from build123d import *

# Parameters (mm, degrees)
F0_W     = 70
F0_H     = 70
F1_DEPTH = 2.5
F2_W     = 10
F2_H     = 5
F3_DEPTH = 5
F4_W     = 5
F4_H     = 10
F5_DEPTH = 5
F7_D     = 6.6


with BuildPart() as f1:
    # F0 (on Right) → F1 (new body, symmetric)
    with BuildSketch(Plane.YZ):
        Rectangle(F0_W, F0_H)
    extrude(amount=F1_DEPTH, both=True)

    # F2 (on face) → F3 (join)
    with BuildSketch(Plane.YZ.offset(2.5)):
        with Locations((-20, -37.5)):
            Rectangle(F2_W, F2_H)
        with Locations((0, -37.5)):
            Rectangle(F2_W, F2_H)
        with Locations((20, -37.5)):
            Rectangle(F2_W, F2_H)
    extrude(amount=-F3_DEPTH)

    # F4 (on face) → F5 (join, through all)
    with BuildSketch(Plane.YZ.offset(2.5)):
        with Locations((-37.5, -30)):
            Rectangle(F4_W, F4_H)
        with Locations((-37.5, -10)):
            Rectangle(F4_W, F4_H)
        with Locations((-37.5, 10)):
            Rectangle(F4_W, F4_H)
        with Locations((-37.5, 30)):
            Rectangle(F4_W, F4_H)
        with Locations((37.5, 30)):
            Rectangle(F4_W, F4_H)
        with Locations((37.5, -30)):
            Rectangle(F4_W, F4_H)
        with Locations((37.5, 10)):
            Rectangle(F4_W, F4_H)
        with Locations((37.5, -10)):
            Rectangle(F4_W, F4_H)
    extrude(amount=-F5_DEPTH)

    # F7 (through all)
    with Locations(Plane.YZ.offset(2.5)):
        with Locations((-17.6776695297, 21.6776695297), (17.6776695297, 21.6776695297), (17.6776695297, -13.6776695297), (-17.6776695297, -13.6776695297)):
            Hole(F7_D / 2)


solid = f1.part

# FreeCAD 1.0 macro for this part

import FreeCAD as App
import Part
import Sketcher
from FreeCAD import Vector


def add_polygon(sketch, points):
    """Adds a closed chain of lines whose ends are joined by coincident constraints."""
    first, n = sketch.GeometryCount, len(points)
    for a, b in zip(points, points[1:] + points[:1]):
        sketch.addGeometry(Part.LineSegment(App.Vector(*a, 0), App.Vector(*b, 0)), False)
    for i in range(n):
        sketch.addConstraint(Sketcher.Constraint("Coincident", first + i, 2, first + (i + 1) % n, 1))

doc = App.newDocument("Part")
body = doc.addObject("PartDesign::Body", "Body")

# Sketch on YZ plane
sketch1 = doc.addObject("Sketcher::SketchObject", "Sketch")
body.addObject(sketch1)
sketch1.AttachmentSupport = (doc.YZ_Plane, [""])
sketch1.MapMode = "FlatFace"
add_polygon(sketch1, [(-35, 35), (-35, -35), (35, -35), (35, 35)])  # lines 0-3
sketch1.addConstraint([
    Sketcher.Constraint("Vertical", 0),
    Sketcher.Constraint("Horizontal", 1),
    Sketcher.Constraint("Vertical", 2),
    Sketcher.Constraint("Horizontal", 3),
    Sketcher.Constraint("Symmetric", 0, 2, 2, 2, -1, 1),
    Sketcher.Constraint("Equal", 3, 0),
    Sketcher.Constraint("DistanceX", 1, 1, 1, 2, 70.0),
])
pad1 = doc.addObject("PartDesign::Pad", "Pad")
body.addObject(pad1)
pad1.Profile = sketch1
pad1.Length = 5
pad1.Midplane = True

# Sketch on YZ plane
sketch2 = doc.addObject("Sketcher::SketchObject", "Sketch001")
body.addObject(sketch2)
sketch2.AttachmentSupport = (doc.YZ_Plane, [""])
sketch2.MapMode = "FlatFace"
sketch2.AttachmentOffset = App.Placement(Vector(0, 0, 2.5), App.Rotation())
add_polygon(sketch2, [(-25, -35), (-25, -40), (-15, -40), (-15, -35)])  # lines 0-3
add_polygon(sketch2, [(-5, -35), (-5, -40), (5, -40), (5, -35)])  # lines 4-7
add_polygon(sketch2, [(15, -35), (15, -40), (25, -40), (25, -35)])  # lines 8-11
sketch2.addConstraint([
    Sketcher.Constraint("Vertical", 0),
    Sketcher.Constraint("Horizontal", 1),
    Sketcher.Constraint("Vertical", 2),
    Sketcher.Constraint("Horizontal", 3),
    Sketcher.Constraint("Vertical", 4),
    Sketcher.Constraint("Horizontal", 5),
    Sketcher.Constraint("Vertical", 6),
    Sketcher.Constraint("Horizontal", 7),
    Sketcher.Constraint("Vertical", 8),
    Sketcher.Constraint("Horizontal", 9),
    Sketcher.Constraint("Vertical", 10),
    Sketcher.Constraint("Horizontal", 11),
    Sketcher.Constraint("Symmetric", 1, 2, 8, 2, -2),
    Sketcher.Constraint("Symmetric", 3, 2, 10, 2, -2),
    Sketcher.Constraint("Horizontal", 1, 2, 4, 2),
    Sketcher.Constraint("Horizontal", 3, 2, 6, 2),
    Sketcher.Constraint("Equal", 3, 5),
    Sketcher.Constraint("DistanceX", 1, 1, 1, 2, 10.0),
    Sketcher.Constraint("DistanceY", 0, 2, 0, 1, 5.0),
    Sketcher.Constraint("DistanceX", 0, 2, -1, 1, 25.0),
    Sketcher.Constraint("DistanceY", 0, 2, -1, 1, 40.0),
    Sketcher.Constraint("DistanceX", 4, 2, -1, 1, 5.0),
])
pad2 = doc.addObject("PartDesign::Pad", "Pad001")
body.addObject(pad2)
pad2.Profile = sketch2
pad2.Length = 5
pad2.Reversed = True

# Sketch on YZ plane
sketch3 = doc.addObject("Sketcher::SketchObject", "Sketch002")
body.addObject(sketch3)
sketch3.AttachmentSupport = (doc.YZ_Plane, [""])
sketch3.MapMode = "FlatFace"
sketch3.AttachmentOffset = App.Placement(Vector(0, 0, 2.5), App.Rotation())
add_polygon(sketch3, [(-40, -25), (-40, -35), (-35, -35), (-35, -25)])  # lines 0-3
add_polygon(sketch3, [(-40, -5), (-40, -15), (-35, -15), (-35, -5)])  # lines 4-7
add_polygon(sketch3, [(-40, 15), (-40, 5), (-35, 5), (-35, 15)])  # lines 8-11
add_polygon(sketch3, [(-40, 35), (-40, 25), (-35, 25), (-35, 35)])  # lines 12-15
add_polygon(sketch3, [(35, 35), (35, 25), (40, 25), (40, 35)])  # lines 16-19
add_polygon(sketch3, [(35, -25), (35, -35), (40, -35), (40, -25)])  # lines 20-23
add_polygon(sketch3, [(35, 15), (35, 5), (40, 5), (40, 15)])  # lines 24-27
add_polygon(sketch3, [(35, -5), (35, -15), (40, -15), (40, -5)])  # lines 28-31
sketch3.addConstraint([
    Sketcher.Constraint("Vertical", 0),
    Sketcher.Constraint("Horizontal", 1),
    Sketcher.Constraint("Vertical", 2),
    Sketcher.Constraint("Horizontal", 3),
    Sketcher.Constraint("Vertical", 4),
    Sketcher.Constraint("Horizontal", 5),
    Sketcher.Constraint("Vertical", 6),
    Sketcher.Constraint("Horizontal", 7),
    Sketcher.Constraint("Vertical", 8),
    Sketcher.Constraint("Horizontal", 9),
    Sketcher.Constraint("Vertical", 10),
    Sketcher.Constraint("Horizontal", 11),
    Sketcher.Constraint("Vertical", 12),
    Sketcher.Constraint("Horizontal", 13),
    Sketcher.Constraint("Vertical", 14),
    Sketcher.Constraint("Horizontal", 15),
    Sketcher.Constraint("Vertical", 16),
    Sketcher.Constraint("Horizontal", 17),
    Sketcher.Constraint("Vertical", 18),
    Sketcher.Constraint("Horizontal", 19),
    Sketcher.Constraint("Vertical", 20),
    Sketcher.Constraint("Horizontal", 21),
    Sketcher.Constraint("Vertical", 22),
    Sketcher.Constraint("Horizontal", 23),
    Sketcher.Constraint("Vertical", 24),
    Sketcher.Constraint("Horizontal", 25),
    Sketcher.Constraint("Vertical", 26),
    Sketcher.Constraint("Horizontal", 27),
    Sketcher.Constraint("Vertical", 28),
    Sketcher.Constraint("Horizontal", 29),
    Sketcher.Constraint("Vertical", 30),
    Sketcher.Constraint("Horizontal", 31),
    Sketcher.Constraint("Symmetric", 2, 2, 16, 2, -1, 1),
    Sketcher.Constraint("Symmetric", 0, 2, 18, 2, -1, 1),
    Sketcher.Constraint("Symmetric", 14, 2, 20, 2, -1, 1),
    Sketcher.Constraint("Symmetric", 12, 2, 22, 2, -1, 1),
    Sketcher.Constraint("Symmetric", 6, 2, 24, 2, -1, 1),
    Sketcher.Constraint("Symmetric", 4, 2, 26, 2, -1, 1),
    Sketcher.Constraint("Symmetric", 10, 2, 28, 2, -1, 1),
    Sketcher.Constraint("Symmetric", 8, 2, 30, 2, -1, 1),
    Sketcher.Constraint("Symmetric", 13, 2, 16, 2, -2),
    Sketcher.Constraint("Symmetric", 15, 2, 18, 2, -2),
    Sketcher.Constraint("Symmetric", 9, 2, 24, 2, -2),
    Sketcher.Constraint("Symmetric", 11, 2, 26, 2, -2),
    Sketcher.Constraint("Vertical", 3, 2, 4, 2),
    Sketcher.Constraint("Vertical", 2, 2, 5, 2),
    Sketcher.Constraint("Equal", 2, 4),
    Sketcher.Constraint("DistanceX", 1, 1, 1, 2, 5.0),
    Sketcher.Constraint("DistanceY", 0, 2, 0, 1, 10.0),
    Sketcher.Constraint("DistanceX", 0, 2, -1, 1, 40.0),
    Sketcher.Constraint("DistanceY", 0, 2, -1, 1, 35.0),
    Sketcher.Constraint("DistanceY", 4, 2, -1, 1, 15.0),
])
pad3 = doc.addObject("PartDesign::Pad", "Pad002")
body.addObject(pad3)
pad3.Profile = sketch3
pad3.Type = "UpToLast"
pad3.Reversed = True

# Sketch on YZ plane
sketch4 = doc.addObject("Sketcher::SketchObject", "Sketch003")
body.addObject(sketch4)
sketch4.AttachmentSupport = (doc.YZ_Plane, [""])
sketch4.MapMode = "FlatFace"
sketch4.AttachmentOffset = App.Placement(Vector(0, 0, 2.5), App.Rotation())
sketch4.addGeometry([
    Part.Circle(Vector(-17.67767, 21.67767, 0), Vector(0, 0, 1), 3.3),
    Part.Circle(Vector(17.67767, 21.67767, 0), Vector(0, 0, 1), 3.3),
    Part.Circle(Vector(17.67767, -13.67767, 0), Vector(0, 0, 1), 3.3),
    Part.Circle(Vector(-17.67767, -13.67767, 0), Vector(0, 0, 1), 3.3),
], False)
sketch4.addConstraint([
    Sketcher.Constraint("Equal", 0, 1),
    Sketcher.Constraint("Equal", 1, 2),
    Sketcher.Constraint("Equal", 2, 3),
    Sketcher.Constraint("Symmetric", 0, 3, 1, 3, -2),
    Sketcher.Constraint("Symmetric", 2, 3, 3, 3, -2),
    Sketcher.Constraint("Vertical", 1, 3, 2, 3),
    Sketcher.Constraint("Diameter", 0, 6.6),
    Sketcher.Constraint("DistanceX", 0, 3, -1, 1, 17.67767),
    Sketcher.Constraint("DistanceY", -1, 1, 0, 3, 21.67767),
    Sketcher.Constraint("DistanceY", 2, 3, -1, 1, 13.67767),
])
doc.recompute()
hole = doc.addObject("PartDesign::Hole", "Hole")
body.addObject(hole)
hole.Profile = sketch4
hole.ThreadType = "None"
hole.Diameter = 6.6
hole.DepthType = "ThroughAll"

doc.recompute()
